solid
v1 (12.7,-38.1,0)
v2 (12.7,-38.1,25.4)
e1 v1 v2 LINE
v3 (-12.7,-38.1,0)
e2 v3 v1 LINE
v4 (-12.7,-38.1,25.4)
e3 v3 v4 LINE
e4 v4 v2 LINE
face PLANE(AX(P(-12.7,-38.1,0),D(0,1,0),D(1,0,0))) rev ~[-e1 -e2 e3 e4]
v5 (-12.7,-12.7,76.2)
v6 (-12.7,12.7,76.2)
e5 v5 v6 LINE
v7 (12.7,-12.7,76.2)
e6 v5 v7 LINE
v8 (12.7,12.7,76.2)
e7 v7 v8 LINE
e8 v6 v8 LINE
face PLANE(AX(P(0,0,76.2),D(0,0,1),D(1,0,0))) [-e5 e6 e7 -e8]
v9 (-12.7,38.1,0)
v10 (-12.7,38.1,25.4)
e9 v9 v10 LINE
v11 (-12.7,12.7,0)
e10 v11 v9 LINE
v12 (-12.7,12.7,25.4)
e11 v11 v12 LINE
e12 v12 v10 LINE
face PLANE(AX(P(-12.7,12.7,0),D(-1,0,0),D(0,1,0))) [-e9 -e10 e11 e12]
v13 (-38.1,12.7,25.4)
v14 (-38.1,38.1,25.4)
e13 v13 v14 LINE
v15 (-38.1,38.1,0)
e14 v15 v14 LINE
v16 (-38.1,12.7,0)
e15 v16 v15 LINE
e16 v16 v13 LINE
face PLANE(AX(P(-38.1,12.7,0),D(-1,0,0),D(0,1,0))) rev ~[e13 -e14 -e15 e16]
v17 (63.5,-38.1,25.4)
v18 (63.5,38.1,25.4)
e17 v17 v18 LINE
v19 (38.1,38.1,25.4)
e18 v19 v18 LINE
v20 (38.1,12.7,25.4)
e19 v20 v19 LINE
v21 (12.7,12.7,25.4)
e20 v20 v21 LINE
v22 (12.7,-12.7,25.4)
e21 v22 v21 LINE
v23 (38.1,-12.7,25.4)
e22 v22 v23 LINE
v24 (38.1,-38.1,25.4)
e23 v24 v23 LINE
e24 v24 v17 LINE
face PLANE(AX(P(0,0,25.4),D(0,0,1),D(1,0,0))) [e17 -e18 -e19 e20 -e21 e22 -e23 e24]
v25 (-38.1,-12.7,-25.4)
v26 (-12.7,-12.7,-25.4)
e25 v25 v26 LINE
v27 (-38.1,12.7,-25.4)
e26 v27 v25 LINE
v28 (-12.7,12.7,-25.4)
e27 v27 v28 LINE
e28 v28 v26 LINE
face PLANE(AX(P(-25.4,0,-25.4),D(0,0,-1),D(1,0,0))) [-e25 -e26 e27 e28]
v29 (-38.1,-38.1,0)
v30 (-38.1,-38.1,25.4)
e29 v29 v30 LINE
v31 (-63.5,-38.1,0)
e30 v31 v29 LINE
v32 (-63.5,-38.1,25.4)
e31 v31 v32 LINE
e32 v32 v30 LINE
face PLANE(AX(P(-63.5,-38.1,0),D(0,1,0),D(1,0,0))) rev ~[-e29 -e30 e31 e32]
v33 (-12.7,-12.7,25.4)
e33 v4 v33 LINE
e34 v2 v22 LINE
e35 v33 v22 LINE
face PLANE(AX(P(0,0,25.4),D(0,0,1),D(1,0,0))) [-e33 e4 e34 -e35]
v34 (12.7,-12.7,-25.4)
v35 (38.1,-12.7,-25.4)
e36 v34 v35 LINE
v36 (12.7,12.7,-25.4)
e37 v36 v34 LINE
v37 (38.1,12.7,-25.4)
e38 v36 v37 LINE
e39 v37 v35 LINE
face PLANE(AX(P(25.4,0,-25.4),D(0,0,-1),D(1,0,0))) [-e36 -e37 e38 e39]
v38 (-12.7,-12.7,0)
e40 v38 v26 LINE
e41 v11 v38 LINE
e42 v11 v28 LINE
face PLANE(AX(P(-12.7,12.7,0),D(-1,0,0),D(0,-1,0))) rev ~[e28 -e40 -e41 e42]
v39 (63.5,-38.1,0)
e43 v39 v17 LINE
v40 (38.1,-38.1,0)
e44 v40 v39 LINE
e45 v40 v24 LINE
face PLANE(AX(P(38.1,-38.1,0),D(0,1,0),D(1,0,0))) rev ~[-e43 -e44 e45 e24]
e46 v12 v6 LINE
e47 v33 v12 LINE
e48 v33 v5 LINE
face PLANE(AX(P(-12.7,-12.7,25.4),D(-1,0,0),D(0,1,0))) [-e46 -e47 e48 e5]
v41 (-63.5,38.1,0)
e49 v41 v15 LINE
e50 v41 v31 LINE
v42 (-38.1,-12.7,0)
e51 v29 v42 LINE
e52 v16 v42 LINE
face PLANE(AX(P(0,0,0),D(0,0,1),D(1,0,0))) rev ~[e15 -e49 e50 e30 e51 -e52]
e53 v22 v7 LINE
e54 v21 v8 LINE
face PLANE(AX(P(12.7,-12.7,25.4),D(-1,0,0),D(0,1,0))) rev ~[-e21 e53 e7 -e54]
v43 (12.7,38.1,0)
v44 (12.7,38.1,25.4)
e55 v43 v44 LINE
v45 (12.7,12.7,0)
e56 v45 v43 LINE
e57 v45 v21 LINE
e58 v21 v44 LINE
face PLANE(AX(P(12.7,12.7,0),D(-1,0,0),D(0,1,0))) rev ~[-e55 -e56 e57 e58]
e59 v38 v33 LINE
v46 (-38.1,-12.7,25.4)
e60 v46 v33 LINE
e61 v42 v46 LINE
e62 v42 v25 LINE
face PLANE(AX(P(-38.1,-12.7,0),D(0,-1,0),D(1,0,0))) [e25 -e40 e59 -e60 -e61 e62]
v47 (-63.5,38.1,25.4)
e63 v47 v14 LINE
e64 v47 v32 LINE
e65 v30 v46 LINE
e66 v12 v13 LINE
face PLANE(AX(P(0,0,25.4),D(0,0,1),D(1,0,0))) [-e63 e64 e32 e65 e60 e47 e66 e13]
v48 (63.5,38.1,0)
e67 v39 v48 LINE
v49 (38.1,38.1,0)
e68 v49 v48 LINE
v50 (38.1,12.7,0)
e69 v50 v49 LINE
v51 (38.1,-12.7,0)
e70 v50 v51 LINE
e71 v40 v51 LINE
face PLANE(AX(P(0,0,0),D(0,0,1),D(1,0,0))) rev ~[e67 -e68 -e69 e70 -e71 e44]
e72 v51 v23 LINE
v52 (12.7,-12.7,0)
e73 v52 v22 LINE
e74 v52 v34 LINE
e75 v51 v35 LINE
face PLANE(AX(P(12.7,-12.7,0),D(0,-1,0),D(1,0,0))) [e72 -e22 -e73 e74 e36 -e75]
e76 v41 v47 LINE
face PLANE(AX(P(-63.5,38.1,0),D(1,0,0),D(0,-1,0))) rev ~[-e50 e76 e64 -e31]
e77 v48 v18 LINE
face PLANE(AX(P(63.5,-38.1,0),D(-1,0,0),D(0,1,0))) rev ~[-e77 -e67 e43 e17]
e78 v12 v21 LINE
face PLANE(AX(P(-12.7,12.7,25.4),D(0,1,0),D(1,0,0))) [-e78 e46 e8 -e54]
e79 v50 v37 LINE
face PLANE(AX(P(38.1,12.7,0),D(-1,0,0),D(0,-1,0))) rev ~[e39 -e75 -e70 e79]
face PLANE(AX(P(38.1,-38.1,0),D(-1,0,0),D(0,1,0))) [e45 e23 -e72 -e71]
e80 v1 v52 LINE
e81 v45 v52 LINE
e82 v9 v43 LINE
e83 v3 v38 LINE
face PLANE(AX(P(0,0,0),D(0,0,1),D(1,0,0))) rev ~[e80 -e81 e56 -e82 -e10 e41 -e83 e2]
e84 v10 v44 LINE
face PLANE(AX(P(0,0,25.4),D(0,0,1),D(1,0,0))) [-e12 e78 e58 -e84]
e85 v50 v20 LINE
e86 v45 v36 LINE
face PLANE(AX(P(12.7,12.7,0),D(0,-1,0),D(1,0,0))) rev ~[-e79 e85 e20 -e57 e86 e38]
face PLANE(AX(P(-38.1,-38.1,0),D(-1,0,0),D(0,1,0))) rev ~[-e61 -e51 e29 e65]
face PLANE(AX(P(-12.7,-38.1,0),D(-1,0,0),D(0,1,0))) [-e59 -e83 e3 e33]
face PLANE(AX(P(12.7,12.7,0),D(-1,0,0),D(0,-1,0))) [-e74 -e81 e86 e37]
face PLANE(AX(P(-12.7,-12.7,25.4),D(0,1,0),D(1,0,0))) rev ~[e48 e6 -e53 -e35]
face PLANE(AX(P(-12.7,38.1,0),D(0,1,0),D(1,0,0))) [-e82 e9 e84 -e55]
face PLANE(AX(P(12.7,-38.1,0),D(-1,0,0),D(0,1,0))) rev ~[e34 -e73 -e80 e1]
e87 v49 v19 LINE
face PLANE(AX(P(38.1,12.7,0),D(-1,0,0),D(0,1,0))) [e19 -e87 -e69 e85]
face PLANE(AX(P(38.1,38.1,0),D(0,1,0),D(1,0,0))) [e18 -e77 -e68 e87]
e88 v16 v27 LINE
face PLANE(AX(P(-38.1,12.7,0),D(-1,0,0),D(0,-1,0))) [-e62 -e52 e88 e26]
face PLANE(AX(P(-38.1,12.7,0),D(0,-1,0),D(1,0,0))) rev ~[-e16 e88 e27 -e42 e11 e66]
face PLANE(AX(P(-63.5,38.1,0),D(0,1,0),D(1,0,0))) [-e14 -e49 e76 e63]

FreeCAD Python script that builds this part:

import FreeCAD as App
import Part
import Sketcher
Q = App.Units.Quantity

doc = App.newDocument("Part")
body = doc.addObject("PartDesign::Body", "Body")

# Sketch on XY plane
sketch1 = body.newObject("Sketcher::SketchObject", "Sketch")
sketch1.AttachmentSupport = (doc.getObject("XY_Plane"), [""])
sketch1.MapMode = "FlatFace"
sketch1.addGeometry(Part.LineSegment(App.Vector(63.5, 38.1, 0), App.Vector(38.1, 38.1, 0)), False)
sketch1.addGeometry(Part.LineSegment(App.Vector(38.1, 38.1, 0), App.Vector(38.1, 12.7, 0)), False)
sketch1.addGeometry(Part.LineSegment(App.Vector(38.1, 12.7, 0), App.Vector(12.7, 12.7, 0)), False)
sketch1.addGeometry(Part.LineSegment(App.Vector(12.7, 12.7, 0), App.Vector(12.7, 38.1, 0)), False)
sketch1.addGeometry(Part.LineSegment(App.Vector(12.7, 38.1, 0), App.Vector(-12.7, 38.1, 0)), False)
sketch1.addGeometry(Part.LineSegment(App.Vector(-12.7, 38.1, 0), App.Vector(-12.7, 12.7, 0)), False)
sketch1.addGeometry(Part.LineSegment(App.Vector(-12.7, 12.7, 0), App.Vector(-38.1, 12.7, 0)), False)
sketch1.addGeometry(Part.LineSegment(App.Vector(-38.1, 12.7, 0), App.Vector(-38.1, 38.1, 0)), False)
sketch1.addGeometry(Part.LineSegment(App.Vector(-38.1, 38.1, 0), App.Vector(-63.5, 38.1, 0)), False)
sketch1.addGeometry(Part.LineSegment(App.Vector(-63.5, 38.1, 0), App.Vector(-63.5, -38.1, 0)), False)
sketch1.addGeometry(Part.LineSegment(App.Vector(-63.5, -38.1, 0), App.Vector(-38.1, -38.1, 0)), False)
sketch1.addGeometry(Part.LineSegment(App.Vector(-38.1, -38.1, 0), App.Vector(-38.1, -12.7, 0)), False)
sketch1.addGeometry(Part.LineSegment(App.Vector(-38.1, -12.7, 0), App.Vector(-12.7, -12.7, 0)), False)
sketch1.addGeometry(Part.LineSegment(App.Vector(-12.7, -12.7, 0), App.Vector(-12.7, -38.1, 0)), False)
sketch1.addGeometry(Part.LineSegment(App.Vector(-12.7, -38.1, 0), App.Vector(12.7, -38.1, 0)), False)
sketch1.addGeometry(Part.LineSegment(App.Vector(12.7, -38.1, 0), App.Vector(12.7, -12.7, 0)), False)
sketch1.addGeometry(Part.LineSegment(App.Vector(12.7, -12.7, 0), App.Vector(38.1, -12.7, 0)), False)
sketch1.addGeometry(Part.LineSegment(App.Vector(38.1, -12.7, 0), App.Vector(38.1, -38.1, 0)), False)
sketch1.addGeometry(Part.LineSegment(App.Vector(38.1, -38.1, 0), App.Vector(63.5, -38.1, 0)), False)
sketch1.addGeometry(Part.LineSegment(App.Vector(63.5, -38.1, 0), App.Vector(63.5, 38.1, 0)), False)
sketch1.addConstraint(Sketcher.Constraint("Coincident", 0, 2, 1, 1))
sketch1.addConstraint(Sketcher.Constraint("Coincident", 1, 2, 2, 1))
sketch1.addConstraint(Sketcher.Constraint("Coincident", 2, 2, 3, 1))
sketch1.addConstraint(Sketcher.Constraint("Coincident", 3, 2, 4, 1))
sketch1.addConstraint(Sketcher.Constraint("Coincident", 4, 2, 5, 1))
sketch1.addConstraint(Sketcher.Constraint("Coincident", 5, 2, 6, 1))
sketch1.addConstraint(Sketcher.Constraint("Coincident", 6, 2, 7, 1))
sketch1.addConstraint(Sketcher.Constraint("Coincident", 7, 2, 8, 1))
sketch1.addConstraint(Sketcher.Constraint("Coincident", 8, 2, 9, 1))
sketch1.addConstraint(Sketcher.Constraint("Coincident", 9, 2, 10, 1))
sketch1.addConstraint(Sketcher.Constraint("Coincident", 10, 2, 11, 1))
sketch1.addConstraint(Sketcher.Constraint("Coincident", 11, 2, 12, 1))
sketch1.addConstraint(Sketcher.Constraint("Coincident", 12, 2, 13, 1))
sketch1.addConstraint(Sketcher.Constraint("Coincident", 13, 2, 14, 1))
sketch1.addConstraint(Sketcher.Constraint("Coincident", 14, 2, 15, 1))
sketch1.addConstraint(Sketcher.Constraint("Coincident", 15, 2, 16, 1))
sketch1.addConstraint(Sketcher.Constraint("Coincident", 16, 2, 17, 1))
sketch1.addConstraint(Sketcher.Constraint("Coincident", 17, 2, 18, 1))
sketch1.addConstraint(Sketcher.Constraint("Coincident", 18, 2, 19, 1))
sketch1.addConstraint(Sketcher.Constraint("Coincident", 19, 2, 0, 1))
sketch1.addConstraint(Sketcher.Constraint("Horizontal", 0))
sketch1.addConstraint(Sketcher.Constraint("Vertical", 1))
sketch1.addConstraint(Sketcher.Constraint("Horizontal", 2))
sketch1.addConstraint(Sketcher.Constraint("Vertical", 3))
sketch1.addConstraint(Sketcher.Constraint("Horizontal", 4))
sketch1.addConstraint(Sketcher.Constraint("Vertical", 5))
sketch1.addConstraint(Sketcher.Constraint("Horizontal", 6))
sketch1.addConstraint(Sketcher.Constraint("Vertical", 7))
sketch1.addConstraint(Sketcher.Constraint("Horizontal", 8))
sketch1.addConstraint(Sketcher.Constraint("Vertical", 9))
sketch1.addConstraint(Sketcher.Constraint("Horizontal", 10))
sketch1.addConstraint(Sketcher.Constraint("Vertical", 11))
sketch1.addConstraint(Sketcher.Constraint("Horizontal", 12))
sketch1.addConstraint(Sketcher.Constraint("Vertical", 13))
sketch1.addConstraint(Sketcher.Constraint("Horizontal", 14))
sketch1.addConstraint(Sketcher.Constraint("Vertical", 15))
sketch1.addConstraint(Sketcher.Constraint("Horizontal", 16))
sketch1.addConstraint(Sketcher.Constraint("Vertical", 17))
sketch1.addConstraint(Sketcher.Constraint("Horizontal", 18))
sketch1.addConstraint(Sketcher.Constraint("Vertical", 19))
sketch1.addConstraint(Sketcher.Constraint("Symmetric", 0, 2, 10, 2, -1, 1))
sketch1.addConstraint(Sketcher.Constraint("Symmetric", 2, 2, 12, 2, -1, 1))
sketch1.addConstraint(Sketcher.Constraint("Symmetric", 4, 2, 14, 2, -1, 1))
sketch1.addConstraint(Sketcher.Constraint("Symmetric", 6, 2, 16, 2, -1, 1))
sketch1.addConstraint(Sketcher.Constraint("Symmetric", 8, 2, 18, 2, -1, 1))
sketch1.addConstraint(Sketcher.Constraint("Symmetric", 2, 2, 5, 2, -2))
sketch1.addConstraint(Sketcher.Constraint("Symmetric", 0, 2, 7, 2, -2))
sketch1.addConstraint(Sketcher.Constraint("Horizontal", 0, 2, 3, 2))
sketch1.addConstraint(Sketcher.Constraint("Equal", 0, 2))
sketch1.addConstraint(Sketcher.Constraint("Equal", 2, 4))
sketch1.addConstraint(Sketcher.Constraint("Equal", 18, 1))
sketch1.addConstraint(Sketcher.Constraint("DistanceX", 0, 2, 0, 1, Q("1 in")))
sketch1.addConstraint(Sketcher.Constraint("DistanceY", 9, 2, 9, 1, Q("3 in")))
pad1 = body.newObject("PartDesign::Pad", "Pad")
pad1.Profile = sketch1
pad1.Length = Q("1 in")

# Sketch on XY plane
sketch2 = body.newObject("Sketcher::SketchObject", "Sketch001")
sketch2.AttachmentSupport = (doc.getObject("XY_Plane"), [""])
sketch2.MapMode = "FlatFace"
sketch2.AttachmentOffset = App.Placement(App.Vector(0, 0, 1 * 25.4), App.Rotation())
sketch2.addGeometry(Part.LineSegment(App.Vector(-12.7, 12.7, 0), App.Vector(-12.7, -12.7, 0)), False)
sketch2.addGeometry(Part.LineSegment(App.Vector(-12.7, -12.7, 0), App.Vector(12.7, -12.7, 0)), False)
sketch2.addGeometry(Part.LineSegment(App.Vector(12.7, -12.7, 0), App.Vector(12.7, 12.7, 0)), False)
sketch2.addGeometry(Part.LineSegment(App.Vector(12.7, 12.7, 0), App.Vector(-12.7, 12.7, 0)), False)
sketch2.addConstraint(Sketcher.Constraint("Coincident", 0, 2, 1, 1))
sketch2.addConstraint(Sketcher.Constraint("Coincident", 1, 2, 2, 1))
sketch2.addConstraint(Sketcher.Constraint("Coincident", 2, 2, 3, 1))
sketch2.addConstraint(Sketcher.Constraint("Coincident", 3, 2, 0, 1))
sketch2.addConstraint(Sketcher.Constraint("Vertical", 0))
sketch2.addConstraint(Sketcher.Constraint("Horizontal", 1))
sketch2.addConstraint(Sketcher.Constraint("Vertical", 2))
sketch2.addConstraint(Sketcher.Constraint("Horizontal", 3))
sketch2.addConstraint(Sketcher.Constraint("Symmetric", 0, 2, 2, 2, -1, 1))
sketch2.addConstraint(Sketcher.Constraint("Equal", 3, 0))
sketch2.addConstraint(Sketcher.Constraint("DistanceX", 1, 1, 1, 2, Q("1 in")))
pad2 = body.newObject("PartDesign::Pad", "Pad001")
pad2.Profile = sketch2
pad2.Length = Q("2 in")

# Sketch on XY plane
sketch3 = body.newObject("Sketcher::SketchObject", "Sketch002")
sketch3.AttachmentSupport = (doc.getObject("XY_Plane"), [""])
sketch3.MapMode = "FlatFace"
sketch3.addGeometry(Part.LineSegment(App.Vector(-38.1, -12.7, 0), App.Vector(-38.1, 12.7, 0)), False)
sketch3.addGeometry(Part.LineSegment(App.Vector(-38.1, 12.7, 0), App.Vector(-12.7, 12.7, 0)), False)
sketch3.addGeometry(Part.LineSegment(App.Vector(-12.7, 12.7, 0), App.Vector(-12.7, -12.7, 0)), False)
sketch3.addGeometry(Part.LineSegment(App.Vector(-12.7, -12.7, 0), App.Vector(-38.1, -12.7, 0)), False)
sketch3.addGeometry(Part.LineSegment(App.Vector(12.7, -12.7, 0), App.Vector(12.7, 12.7, 0)), False)
sketch3.addGeometry(Part.LineSegment(App.Vector(12.7, 12.7, 0), App.Vector(38.1, 12.7, 0)), False)
sketch3.addGeometry(Part.LineSegment(App.Vector(38.1, 12.7, 0), App.Vector(38.1, -12.7, 0)), False)
sketch3.addGeometry(Part.LineSegment(App.Vector(38.1, -12.7, 0), App.Vector(12.7, -12.7, 0)), False)
sketch3.addConstraint(Sketcher.Constraint("Coincident", 0, 2, 1, 1))
sketch3.addConstraint(Sketcher.Constraint("Coincident", 1, 2, 2, 1))
sketch3.addConstraint(Sketcher.Constraint("Coincident", 2, 2, 3, 1))
sketch3.addConstraint(Sketcher.Constraint("Coincident", 3, 2, 0, 1))
sketch3.addConstraint(Sketcher.Constraint("Coincident", 4, 2, 5, 1))
sketch3.addConstraint(Sketcher.Constraint("Coincident", 5, 2, 6, 1))
sketch3.addConstraint(Sketcher.Constraint("Coincident", 6, 2, 7, 1))
sketch3.addConstraint(Sketcher.Constraint("Coincident", 7, 2, 4, 1))
sketch3.addConstraint(Sketcher.Constraint("Vertical", 0))
sketch3.addConstraint(Sketcher.Constraint("Horizontal", 1))
sketch3.addConstraint(Sketcher.Constraint("Vertical", 2))
sketch3.addConstraint(Sketcher.Constraint("Horizontal", 3))
sketch3.addConstraint(Sketcher.Constraint("Vertical", 4))
sketch3.addConstraint(Sketcher.Constraint("Horizontal", 5))
sketch3.addConstraint(Sketcher.Constraint("Vertical", 6))
sketch3.addConstraint(Sketcher.Constraint("Horizontal", 7))
sketch3.addConstraint(Sketcher.Constraint("Symmetric", 2, 2, 4, 2, -1, 1))
sketch3.addConstraint(Sketcher.Constraint("Symmetric", 0, 2, 6, 2, -1, 1))
sketch3.addConstraint(Sketcher.Constraint("Horizontal", 1, 2, 4, 2))
sketch3.addConstraint(Sketcher.Constraint("Equal", 7, 0))
sketch3.addConstraint(Sketcher.Constraint("DistanceX", 1, 1, 1, 2, Q("1 in")))
sketch3.addConstraint(Sketcher.Constraint("DistanceX", 1, 2, 4, 2, Q("1 in")))
pad3 = body.newObject("PartDesign::Pad", "Pad002")
pad3.Profile = sketch3
pad3.Length = Q("1 in")
pad3.Reversed = True

doc.recompute()
